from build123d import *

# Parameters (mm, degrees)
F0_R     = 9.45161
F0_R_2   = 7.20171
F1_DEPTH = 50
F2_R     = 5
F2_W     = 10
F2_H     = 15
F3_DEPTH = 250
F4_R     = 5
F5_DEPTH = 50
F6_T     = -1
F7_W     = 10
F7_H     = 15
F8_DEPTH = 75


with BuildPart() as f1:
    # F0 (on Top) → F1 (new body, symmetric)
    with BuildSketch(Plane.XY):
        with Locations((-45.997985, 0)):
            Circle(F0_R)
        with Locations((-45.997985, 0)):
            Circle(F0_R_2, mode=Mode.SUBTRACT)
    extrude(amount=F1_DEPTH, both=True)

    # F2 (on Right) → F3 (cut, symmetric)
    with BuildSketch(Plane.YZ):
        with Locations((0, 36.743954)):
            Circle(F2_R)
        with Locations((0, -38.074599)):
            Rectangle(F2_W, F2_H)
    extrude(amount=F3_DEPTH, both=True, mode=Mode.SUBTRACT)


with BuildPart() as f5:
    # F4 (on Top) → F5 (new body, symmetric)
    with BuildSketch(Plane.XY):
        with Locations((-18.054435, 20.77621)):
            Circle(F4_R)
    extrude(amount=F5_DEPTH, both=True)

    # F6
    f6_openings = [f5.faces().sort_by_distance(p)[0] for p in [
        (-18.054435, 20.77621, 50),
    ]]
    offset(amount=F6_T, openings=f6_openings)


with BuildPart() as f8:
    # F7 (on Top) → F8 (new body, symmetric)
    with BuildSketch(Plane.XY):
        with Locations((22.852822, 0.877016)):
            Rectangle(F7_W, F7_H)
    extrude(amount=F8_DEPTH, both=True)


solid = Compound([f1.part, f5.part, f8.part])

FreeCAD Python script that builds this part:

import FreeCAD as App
import Part
import Sketcher
from FreeCAD import Vector
Q = App.Units.Quantity


def faces_at(feature, points):
    """Names of the faces that lie closest to the given points."""
    faces = feature.Shape.Faces
    near = lambda p: min(range(len(faces)), key=lambda i: faces[i].distToShape(Part.Vertex(*p))[0])
    return sorted({f"Face{near(p) + 1}" for p in points})


def add_polygon(sketch, points):
    """Adds a closed chain of lines whose ends are joined by coincident constraints."""
    first, n = sketch.GeometryCount, len(points)
    for a, b in zip(points, points[1:] + points[:1]):
        sketch.addGeometry(Part.LineSegment(App.Vector(*a, 0), App.Vector(*b, 0)), False)
    for i in range(n):
        sketch.addConstraint(Sketcher.Constraint("Coincident", first + i, 2, first + (i + 1) % n, 1))

doc = App.newDocument("Part")
body = doc.addObject("PartDesign::Body", "Body")

# Sketch on XY plane
sketch1 = body.newObject("Sketcher::SketchObject", "Sketch")
sketch1.AttachmentSupport = (doc.getObject("XY_Plane"), [""])
sketch1.MapMode = "FlatFace"
sketch1.addGeometry([
    Part.Circle(Vector(-46, 0, 0), Vector(0, 0, 1), 9),
    Part.Circle(Vector(-46, 0, 0), Vector(0, 0, 1), 7),
], False)
sketch1.addConstraint([
    Sketcher.Constraint("Coincident", 1, 3, 0, 3),
    Sketcher.Constraint("PointOnObject", 0, 3, -1),
    Sketcher.Constraint("Diameter", 0, Q("18.90322 mm")),
    Sketcher.Constraint("Diameter", 1, Q("14.40342 mm")),
    Sketcher.Constraint("DistanceX", 0, 3, -1, 1, Q("45.997985 mm")),
])
pad1 = body.newObject("PartDesign::Pad", "Pad")
pad1.Profile = sketch1
pad1.Length = 100
pad1.Midplane = True

# Sketch on YZ plane
sketch2 = body.newObject("Sketcher::SketchObject", "Sketch001")
sketch2.AttachmentSupport = (doc.getObject("YZ_Plane"), [""])
sketch2.MapMode = "FlatFace"
sketch2.addGeometry(Part.Circle(Vector(0, 37, 0), Vector(0, 0, 1), 5), False)  # 0
add_polygon(sketch2, [(-5, -31), (-5, -46), (5, -46), (5, -31)])  # lines 1-4
sketch2.addConstraint([
    Sketcher.Constraint("Vertical", 1),
    Sketcher.Constraint("Horizontal", 2),
    Sketcher.Constraint("Vertical", 3),
    Sketcher.Constraint("Horizontal", 4),
    Sketcher.Constraint("PointOnObject", 0, 3, -2),
    Sketcher.Constraint("Diameter", 0, Q("10 mm")),
    Sketcher.Constraint("DistanceX", 2, 1, 2, 2, Q("10 mm")),
    Sketcher.Constraint("DistanceY", 1, 2, 1, 1, Q("15 mm")),
    Sketcher.Constraint("DistanceX", 1, 2, -1, 1, Q("5 mm")),
    Sketcher.Constraint("DistanceY", 1, 2, -1, 1, Q("45.574599 mm")),
    Sketcher.Constraint("DistanceY", -1, 1, 0, 3, Q("36.743954 mm")),
])
pocket1 = body.newObject("PartDesign::Pocket", "Pocket")
pocket1.Profile = sketch2
pocket1.Length = 500
pocket1.Midplane = True
body2 = doc.addObject("PartDesign::Body", "Body001")

# Sketch on XY plane
sketch3 = body2.newObject("Sketcher::SketchObject", "Sketch002")
sketch3.AttachmentSupport = (doc.getObject("XY_Plane001"), [""])
sketch3.MapMode = "FlatFace"
sketch3.addGeometry(Part.Circle(Vector(-18, 21, 0), Vector(0, 0, 1), 5), False)
sketch3.addConstraint([
    Sketcher.Constraint("Diameter", 0, Q("10 mm")),
    Sketcher.Constraint("DistanceY", -1, 1, 0, 3, Q("20.77621 mm")),
    Sketcher.Constraint("DistanceX", 0, 3, -1, 1, Q("18.054435 mm")),
])
pad2 = body2.newObject("PartDesign::Pad", "Pad001")
pad2.Profile = sketch3
pad2.Length = 100
pad2.Midplane = True
doc.recompute()

thickness = body2.newObject("PartDesign::Thickness", "Thickness")
thickness.Base = (pad2, faces_at(pad2, [(-18.054, 20.776, 50)]))
thickness.Value = 1
thickness.Reversed = True
thickness.Join = "Arc"
body3 = doc.addObject("PartDesign::Body", "Body002")

# Sketch on XY plane
sketch4 = body3.newObject("Sketcher::SketchObject", "Sketch003")
sketch4.AttachmentSupport = (doc.getObject("XY_Plane002"), [""])
sketch4.MapMode = "FlatFace"
add_polygon(sketch4, [(18, 8), (18, -7), (28, -7), (28, 8)])  # lines 0-3
sketch4.addConstraint([
    Sketcher.Constraint("Vertical", 0),
    Sketcher.Constraint("Horizontal", 1),
    Sketcher.Constraint("Vertical", 2),
    Sketcher.Constraint("Horizontal", 3),
    Sketcher.Constraint("DistanceX", 1, 1, 1, 2, Q("10 mm")),
    Sketcher.Constraint("DistanceY", 0, 2, 0, 1, Q("15 mm")),
    Sketcher.Constraint("DistanceX", -1, 1, 0, 2, Q("17.852822 mm")),
    Sketcher.Constraint("DistanceY", 0, 2, -1, 1, Q("6.622984 mm")),
])
pad3 = body3.newObject("PartDesign::Pad", "Pad002")
pad3.Profile = sketch4
pad3.Length = 150
pad3.Midplane = True

doc.recompute()
